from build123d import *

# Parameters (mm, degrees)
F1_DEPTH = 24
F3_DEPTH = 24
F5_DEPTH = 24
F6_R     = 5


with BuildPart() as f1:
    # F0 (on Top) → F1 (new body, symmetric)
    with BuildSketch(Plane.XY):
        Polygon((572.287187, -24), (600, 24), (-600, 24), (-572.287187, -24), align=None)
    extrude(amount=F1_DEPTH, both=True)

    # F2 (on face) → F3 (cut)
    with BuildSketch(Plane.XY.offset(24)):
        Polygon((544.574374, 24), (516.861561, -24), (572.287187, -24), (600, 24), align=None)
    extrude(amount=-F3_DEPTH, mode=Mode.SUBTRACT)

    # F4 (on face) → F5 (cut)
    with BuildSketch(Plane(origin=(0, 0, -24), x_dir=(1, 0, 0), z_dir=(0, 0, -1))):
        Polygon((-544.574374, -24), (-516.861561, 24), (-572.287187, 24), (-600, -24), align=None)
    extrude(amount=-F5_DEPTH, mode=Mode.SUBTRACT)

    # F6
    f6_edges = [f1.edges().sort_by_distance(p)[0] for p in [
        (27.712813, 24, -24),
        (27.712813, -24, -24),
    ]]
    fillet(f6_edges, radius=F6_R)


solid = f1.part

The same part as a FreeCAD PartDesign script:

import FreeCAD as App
import Part
import Sketcher

V = App.Vector
Q = App.Units.Quantity


def edges_at(feature, points):
    """Names of the edges that pass closest to the given points."""
    edges = feature.Shape.Edges
    near = lambda p: min(range(len(edges)), key=lambda i: edges[i].distToShape(Part.Vertex(*p))[0])
    return sorted({f"Edge{near(p) + 1}" for p in points})

doc = App.newDocument("Part")
params = doc.addObject("Spreadsheet::Sheet", "Params")
for row, (alias, value) in enumerate([
    ("sketch1_width", "1200 mm"),
    ("pad1_length", "48 mm"),
    ("pocket1_length", "24 mm"),
    ("pocket2_length", "24 mm"),
    ("fillet_radius", "5 mm"),
], start=1):
    params.set(f"A{row}", alias)
    params.set(f"B{row}", "=" + value)
    params.setAlias(f"B{row}", alias)

body = doc.addObject("PartDesign::Body", "Body")

sketch1 = body.newObject("Sketcher::SketchObject", "Sketch")
sketch1.AttachmentSupport = (doc.getObject("XY_Plane"), [""])
sketch1.MapMode = "FlatFace"
sketch1.addGeometry([
    Part.LineSegment(V(572, -24, 0), V(600, 24, 0)),
    Part.LineSegment(V(600, 24, 0), V(-600, 24, 0)),
    Part.LineSegment(V(-600, 24, 0), V(-572, -24, 0)),
    Part.LineSegment(V(-572, -24, 0), V(572, -24, 0)),
], False)
sketch1.addConstraint([
    Sketcher.Constraint("Coincident", 0, 2, 1, 1),
    Sketcher.Constraint("Coincident", 1, 2, 2, 1),
    Sketcher.Constraint("Coincident", 2, 2, 3, 1),
    Sketcher.Constraint("Coincident", 3, 2, 0, 1),
    Sketcher.Constraint("Horizontal", 1),
    Sketcher.Constraint("Horizontal", 3),
    Sketcher.Constraint("Equal", 0, 2),
    Sketcher.Constraint("DistanceX", 1, 2, 1, 1, 1200.0),
    Sketcher.Constraint("Angle", 0, Q("60 deg")),
    Sketcher.Constraint("DistanceX", -1, 1, 0, 2, 600.0),
    Sketcher.Constraint("DistanceY", -1, 1, 0, 2, 24.0),
    Sketcher.Constraint("DistanceY", 2, 2, -1, 1, 24.0),
])
sketch1.setExpression("Constraints[7]", "Params.sketch1_width")
pad1 = body.newObject("PartDesign::Pad", "Pad")
pad1.Profile = sketch1
pad1.setExpression("Length", "Params.pad1_length")
pad1.Midplane = True

sketch2 = body.newObject("Sketcher::SketchObject", "Sketch001")
sketch2.AttachmentSupport = (doc.getObject("XY_Plane"), [""])
sketch2.MapMode = "FlatFace"
sketch2.AttachmentOffset = App.Placement(V(0, 0, 24), App.Rotation())
sketch2.addGeometry([
    Part.LineSegment(V(545, 24, 0), V(517, -24, 0)),
    Part.LineSegment(V(517, -24, 0), V(572, -24, 0)),
    Part.LineSegment(V(572, -24, 0), V(600, 24, 0)),
    Part.LineSegment(V(600, 24, 0), V(545, 24, 0)),
], False)
sketch2.addConstraint([
    Sketcher.Constraint("Coincident", 0, 2, 1, 1),
    Sketcher.Constraint("Coincident", 1, 2, 2, 1),
    Sketcher.Constraint("Coincident", 2, 2, 3, 1),
    Sketcher.Constraint("Coincident", 3, 2, 0, 1),
    Sketcher.Constraint("Horizontal", 1),
    Sketcher.Constraint("Horizontal", 3),
    Sketcher.Constraint("Parallel", 0, 2),
    Sketcher.Constraint("Angle", 0, Q("-120 deg")),
    Sketcher.Constraint("DistanceY", 0, 2, -1, 1, 24.0),
    Sketcher.Constraint("DistanceX", -1, 1, 2, 2, 600.0),
    Sketcher.Constraint("DistanceY", -1, 1, 2, 2, 24.0),
    Sketcher.Constraint("DistanceX", 1, 1, 1, 2, 55.425626),
])
pocket1 = body.newObject("PartDesign::Pocket", "Pocket")
pocket1.Profile = sketch2
pocket1.setExpression("Length", "Params.pocket1_length")

sketch3 = body.newObject("Sketcher::SketchObject", "Sketch002")
sketch3.AttachmentSupport = (doc.getObject("XY_Plane"), [""])
sketch3.MapMode = "FlatFace"
sketch3.AttachmentOffset = App.Placement(V(0, 0, -24), App.Rotation())
sketch3.addGeometry([
    Part.LineSegment(V(-545, 24, 0), V(-517, -24, 0)),
    Part.LineSegment(V(-517, -24, 0), V(-572, -24, 0)),
    Part.LineSegment(V(-572, -24, 0), V(-600, 24, 0)),
    Part.LineSegment(V(-600, 24, 0), V(-545, 24, 0)),
], False)
sketch3.addConstraint([
    Sketcher.Constraint("Coincident", 0, 2, 1, 1),
    Sketcher.Constraint("Coincident", 1, 2, 2, 1),
    Sketcher.Constraint("Coincident", 2, 2, 3, 1),
    Sketcher.Constraint("Coincident", 3, 2, 0, 1),
    Sketcher.Constraint("Horizontal", 1),
    Sketcher.Constraint("Horizontal", 3),
    Sketcher.Constraint("Parallel", 0, 2),
    Sketcher.Constraint("Angle", 0, Q("-60 deg")),
    Sketcher.Constraint("DistanceY", 0, 2, -1, 1, 24.0),
    Sketcher.Constraint("DistanceX", 2, 2, -1, 1, 600.0),
    Sketcher.Constraint("DistanceY", -1, 1, 2, 2, 24.0),
    Sketcher.Constraint("DistanceX", 1, 2, 1, 1, 55.425626),
])
pocket2 = body.newObject("PartDesign::Pocket", "Pocket001")
pocket2.Profile = sketch3
pocket2.setExpression("Length", "Params.pocket2_length")
pocket2.Reversed = True
doc.recompute()

fillet = body.newObject("PartDesign::Fillet", "Fillet")
fillet.Base = (pocket2, edges_at(pocket2, [(27.713, 24, -24), (27.713, -24, -24)]))
fillet.setExpression("Radius", "Params.fillet_radius")

doc.recompute()
